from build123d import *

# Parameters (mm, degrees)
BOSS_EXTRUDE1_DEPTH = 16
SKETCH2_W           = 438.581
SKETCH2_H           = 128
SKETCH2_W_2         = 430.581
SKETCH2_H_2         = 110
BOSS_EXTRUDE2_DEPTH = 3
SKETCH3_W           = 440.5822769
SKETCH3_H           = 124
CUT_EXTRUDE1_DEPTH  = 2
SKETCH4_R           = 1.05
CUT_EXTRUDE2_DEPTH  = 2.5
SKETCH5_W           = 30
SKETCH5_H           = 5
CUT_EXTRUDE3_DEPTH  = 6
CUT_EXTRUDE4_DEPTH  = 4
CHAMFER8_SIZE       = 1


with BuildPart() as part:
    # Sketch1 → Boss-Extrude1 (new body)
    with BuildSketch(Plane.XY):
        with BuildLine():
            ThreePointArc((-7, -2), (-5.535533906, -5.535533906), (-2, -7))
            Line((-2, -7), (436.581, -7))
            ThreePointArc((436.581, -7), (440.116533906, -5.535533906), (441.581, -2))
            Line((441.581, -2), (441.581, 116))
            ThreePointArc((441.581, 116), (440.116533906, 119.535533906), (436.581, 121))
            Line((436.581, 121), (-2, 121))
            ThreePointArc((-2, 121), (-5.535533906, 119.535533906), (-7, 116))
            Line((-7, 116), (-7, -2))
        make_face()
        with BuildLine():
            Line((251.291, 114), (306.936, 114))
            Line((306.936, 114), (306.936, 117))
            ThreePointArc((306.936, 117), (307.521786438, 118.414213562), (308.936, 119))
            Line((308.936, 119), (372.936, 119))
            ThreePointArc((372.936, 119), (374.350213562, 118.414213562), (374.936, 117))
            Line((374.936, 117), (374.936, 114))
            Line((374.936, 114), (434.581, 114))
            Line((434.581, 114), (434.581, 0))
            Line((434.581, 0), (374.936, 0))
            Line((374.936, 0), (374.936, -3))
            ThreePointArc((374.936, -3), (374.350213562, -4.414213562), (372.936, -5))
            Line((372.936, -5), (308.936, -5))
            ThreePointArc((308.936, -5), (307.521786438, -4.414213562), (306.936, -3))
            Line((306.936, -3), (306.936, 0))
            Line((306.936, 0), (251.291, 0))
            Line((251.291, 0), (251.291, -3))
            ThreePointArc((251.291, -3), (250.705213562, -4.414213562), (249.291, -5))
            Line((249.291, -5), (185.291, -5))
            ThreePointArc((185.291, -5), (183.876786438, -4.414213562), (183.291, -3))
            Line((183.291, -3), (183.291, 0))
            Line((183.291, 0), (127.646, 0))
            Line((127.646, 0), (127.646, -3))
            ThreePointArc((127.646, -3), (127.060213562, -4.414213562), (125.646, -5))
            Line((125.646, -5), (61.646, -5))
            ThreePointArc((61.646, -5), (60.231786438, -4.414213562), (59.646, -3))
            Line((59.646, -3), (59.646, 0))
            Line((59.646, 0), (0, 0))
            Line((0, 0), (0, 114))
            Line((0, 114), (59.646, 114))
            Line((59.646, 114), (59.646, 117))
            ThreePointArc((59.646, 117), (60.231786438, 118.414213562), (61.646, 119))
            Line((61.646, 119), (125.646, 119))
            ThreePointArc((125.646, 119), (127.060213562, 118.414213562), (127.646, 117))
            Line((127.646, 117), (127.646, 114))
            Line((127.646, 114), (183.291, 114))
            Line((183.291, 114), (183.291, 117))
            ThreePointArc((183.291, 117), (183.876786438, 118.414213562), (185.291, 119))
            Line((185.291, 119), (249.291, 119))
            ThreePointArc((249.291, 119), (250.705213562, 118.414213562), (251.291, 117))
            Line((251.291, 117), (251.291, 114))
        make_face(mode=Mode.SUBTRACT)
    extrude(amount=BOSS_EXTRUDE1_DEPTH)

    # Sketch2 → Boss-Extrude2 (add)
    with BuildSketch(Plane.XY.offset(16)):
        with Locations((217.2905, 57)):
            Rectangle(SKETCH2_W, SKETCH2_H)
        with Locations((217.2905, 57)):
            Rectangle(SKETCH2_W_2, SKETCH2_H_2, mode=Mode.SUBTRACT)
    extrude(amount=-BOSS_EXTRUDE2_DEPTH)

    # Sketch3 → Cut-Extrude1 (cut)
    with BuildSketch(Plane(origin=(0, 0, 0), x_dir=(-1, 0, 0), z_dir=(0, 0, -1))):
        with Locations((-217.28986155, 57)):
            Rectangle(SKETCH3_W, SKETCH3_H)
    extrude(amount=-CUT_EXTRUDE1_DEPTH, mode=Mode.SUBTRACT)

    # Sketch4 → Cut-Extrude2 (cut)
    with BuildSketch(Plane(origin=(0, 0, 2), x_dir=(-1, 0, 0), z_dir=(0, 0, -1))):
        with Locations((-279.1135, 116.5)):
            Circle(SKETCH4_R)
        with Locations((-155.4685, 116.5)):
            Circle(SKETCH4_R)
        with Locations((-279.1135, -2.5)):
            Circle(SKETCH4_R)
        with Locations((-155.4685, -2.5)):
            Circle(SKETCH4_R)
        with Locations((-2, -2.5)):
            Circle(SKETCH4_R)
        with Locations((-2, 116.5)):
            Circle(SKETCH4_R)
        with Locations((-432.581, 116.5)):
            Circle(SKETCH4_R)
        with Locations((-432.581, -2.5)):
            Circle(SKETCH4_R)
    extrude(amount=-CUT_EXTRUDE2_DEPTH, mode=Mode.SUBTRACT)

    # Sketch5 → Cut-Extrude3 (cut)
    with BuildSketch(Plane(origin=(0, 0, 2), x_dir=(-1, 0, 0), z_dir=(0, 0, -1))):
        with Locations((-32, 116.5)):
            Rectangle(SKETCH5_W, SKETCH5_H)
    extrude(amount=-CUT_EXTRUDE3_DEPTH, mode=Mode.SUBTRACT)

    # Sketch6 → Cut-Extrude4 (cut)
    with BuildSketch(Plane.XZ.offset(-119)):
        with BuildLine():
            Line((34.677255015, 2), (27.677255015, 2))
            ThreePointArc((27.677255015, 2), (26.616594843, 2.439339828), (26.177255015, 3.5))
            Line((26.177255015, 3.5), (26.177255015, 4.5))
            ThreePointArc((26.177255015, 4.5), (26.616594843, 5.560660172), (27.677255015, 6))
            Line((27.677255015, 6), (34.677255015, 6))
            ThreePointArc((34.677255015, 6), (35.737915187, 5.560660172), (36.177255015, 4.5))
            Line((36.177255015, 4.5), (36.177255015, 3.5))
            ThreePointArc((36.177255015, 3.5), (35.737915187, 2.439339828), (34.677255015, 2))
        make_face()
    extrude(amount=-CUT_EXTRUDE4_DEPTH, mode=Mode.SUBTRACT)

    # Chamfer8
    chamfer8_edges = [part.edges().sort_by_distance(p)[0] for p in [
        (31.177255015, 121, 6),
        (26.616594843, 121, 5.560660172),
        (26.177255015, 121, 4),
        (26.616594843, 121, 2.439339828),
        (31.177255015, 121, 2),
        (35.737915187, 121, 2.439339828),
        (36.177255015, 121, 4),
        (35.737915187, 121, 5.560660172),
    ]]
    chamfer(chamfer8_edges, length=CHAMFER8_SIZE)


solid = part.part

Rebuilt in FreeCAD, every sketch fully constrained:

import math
import FreeCAD as App
import Part
import Sketcher
from FreeCAD import Vector


def edges_at(feature, points):
    """Names of the edges that pass closest to the given points."""
    edges = feature.Shape.Edges
    near = lambda p: min(range(len(edges)), key=lambda i: edges[i].distToShape(Part.Vertex(*p))[0])
    return sorted({f"Edge{near(p) + 1}" for p in points})


def add_polygon(sketch, points):
    """Adds a closed chain of lines whose ends are joined by coincident constraints."""
    first, n = sketch.GeometryCount, len(points)
    for a, b in zip(points, points[1:] + points[:1]):
        sketch.addGeometry(Part.LineSegment(App.Vector(*a, 0), App.Vector(*b, 0)), False)
    for i in range(n):
        sketch.addConstraint(Sketcher.Constraint("Coincident", first + i, 2, first + (i + 1) % n, 1))

doc = App.newDocument("Part")
body = doc.addObject("PartDesign::Body", "Body")

# Sketch on XY plane
sketch1 = doc.addObject("Sketcher::SketchObject", "Sketch")
body.addObject(sketch1)
sketch1.AttachmentSupport = (doc.XY_Plane, [""])
sketch1.MapMode = "FlatFace"
sketch1.addGeometry([
    Part.ArcOfCircle(Part.Circle(Vector(-2, -2, 0), Vector(0, 0, 1), 5), math.radians(180), math.radians(270)),  # 0
    Part.LineSegment(Vector(-2, -7, 0), Vector(436.6, -7, 0)),  # 1
    Part.ArcOfCircle(Part.Circle(Vector(436.6, -2, 0), Vector(0, 0, 1), 5), math.radians(-90), math.radians(0)),  # 2
    Part.LineSegment(Vector(441.6, -2, 0), Vector(441.6, 116, 0)),  # 3
    Part.ArcOfCircle(Part.Circle(Vector(436.6, 116, 0), Vector(0, 0, 1), 5), math.radians(0), math.radians(90)),  # 4
    Part.LineSegment(Vector(436.6, 121, 0), Vector(-2, 121, 0)),  # 5
    Part.ArcOfCircle(Part.Circle(Vector(-2, 116, 0), Vector(0, 0, 1), 5), math.radians(90), math.radians(180)),  # 6
    Part.LineSegment(Vector(-7, 116, 0), Vector(-7, -2, 0)),  # 7
    Part.LineSegment(Vector(251.3, 117, 0), Vector(251.3, 114, 0)),  # 8
    Part.LineSegment(Vector(251.3, 114, 0), Vector(306.9, 114, 0)),  # 9
    Part.LineSegment(Vector(306.9, 114, 0), Vector(306.9, 117, 0)),  # 10
    Part.ArcOfCircle(Part.Circle(Vector(308.9, 117, 0), Vector(0, 0, 1), 2), math.radians(90), math.radians(180)),  # 11
    Part.LineSegment(Vector(308.9, 119, 0), Vector(372.9, 119, 0)),  # 12
    Part.ArcOfCircle(Part.Circle(Vector(372.9, 117, 0), Vector(0, 0, 1), 2), math.radians(0), math.radians(90)),  # 13
    Part.LineSegment(Vector(374.9, 117, 0), Vector(374.9, 114, 0)),  # 14
    Part.LineSegment(Vector(374.9, 114, 0), Vector(434.6, 114, 0)),  # 15
    Part.LineSegment(Vector(434.6, 114, 0), Vector(434.6, 0, 0)),  # 16
    Part.LineSegment(Vector(434.6, 0, 0), Vector(374.9, 0, 0)),  # 17
    Part.LineSegment(Vector(374.9, 0, 0), Vector(374.9, -3, 0)),  # 18
    Part.ArcOfCircle(Part.Circle(Vector(372.9, -3, 0), Vector(0, 0, 1), 2), math.radians(-90), math.radians(0)),  # 19
    Part.LineSegment(Vector(372.9, -5, 0), Vector(308.9, -5, 0)),  # 20
    Part.ArcOfCircle(Part.Circle(Vector(308.9, -3, 0), Vector(0, 0, 1), 2), math.radians(-180), math.radians(-90)),  # 21
    Part.LineSegment(Vector(306.9, -3, 0), Vector(306.9, 0, 0)),  # 22
    Part.LineSegment(Vector(306.9, 0, 0), Vector(251.3, 0, 0)),  # 23
    Part.LineSegment(Vector(251.3, 0, 0), Vector(251.3, -3, 0)),  # 24
    Part.ArcOfCircle(Part.Circle(Vector(249.3, -3, 0), Vector(0, 0, 1), 2), math.radians(-90), math.radians(0)),  # 25
    Part.LineSegment(Vector(249.3, -5, 0), Vector(185.3, -5, 0)),  # 26
    Part.ArcOfCircle(Part.Circle(Vector(185.3, -3, 0), Vector(0, 0, 1), 2), math.radians(-180), math.radians(-90)),  # 27
    Part.LineSegment(Vector(183.3, -3, 0), Vector(183.3, 0, 0)),  # 28
    Part.LineSegment(Vector(183.3, 0, 0), Vector(127.6, 0, 0)),  # 29
    Part.LineSegment(Vector(127.6, 0, 0), Vector(127.6, -3, 0)),  # 30
    Part.ArcOfCircle(Part.Circle(Vector(125.6, -3, 0), Vector(0, 0, 1), 2), math.radians(-90), math.radians(0)),  # 31
    Part.LineSegment(Vector(125.6, -5, 0), Vector(61.6, -5, 0)),  # 32
    Part.ArcOfCircle(Part.Circle(Vector(61.6, -3, 0), Vector(0, 0, 1), 2), math.radians(-180), math.radians(-90)),  # 33
    Part.LineSegment(Vector(59.6, -3, 0), Vector(59.6, 0, 0)),  # 34
    Part.LineSegment(Vector(59.6, 0, 0), Vector(0, 0, 0)),  # 35
    Part.LineSegment(Vector(0, 0, 0), Vector(0, 114, 0)),  # 36
    Part.LineSegment(Vector(0, 114, 0), Vector(59.6, 114, 0)),  # 37
    Part.LineSegment(Vector(59.6, 114, 0), Vector(59.6, 117, 0)),  # 38
    Part.ArcOfCircle(Part.Circle(Vector(61.6, 117, 0), Vector(0, 0, 1), 2), math.radians(90), math.radians(180)),  # 39
    Part.LineSegment(Vector(61.6, 119, 0), Vector(125.6, 119, 0)),  # 40
    Part.ArcOfCircle(Part.Circle(Vector(125.6, 117, 0), Vector(0, 0, 1), 2), math.radians(0), math.radians(90)),  # 41
    Part.LineSegment(Vector(127.6, 117, 0), Vector(127.6, 114, 0)),  # 42
    Part.LineSegment(Vector(127.6, 114, 0), Vector(183.3, 114, 0)),  # 43
    Part.LineSegment(Vector(183.3, 114, 0), Vector(183.3, 117, 0)),  # 44
    Part.ArcOfCircle(Part.Circle(Vector(185.3, 117, 0), Vector(0, 0, 1), 2), math.radians(90), math.radians(180)),  # 45
    Part.LineSegment(Vector(185.3, 119, 0), Vector(249.3, 119, 0)),  # 46
    Part.ArcOfCircle(Part.Circle(Vector(249.3, 117, 0), Vector(0, 0, 1), 2), math.radians(0), math.radians(90)),  # 47
], False)
sketch1.addConstraint([
    Sketcher.Constraint("Tangent", 0, 2, 1, 1),
    Sketcher.Constraint("Tangent", 1, 2, 2, 1),
    Sketcher.Constraint("Tangent", 2, 2, 3, 1),
    Sketcher.Constraint("Tangent", 3, 2, 4, 1),
    Sketcher.Constraint("Tangent", 4, 2, 5, 1),
    Sketcher.Constraint("Tangent", 5, 2, 6, 1),
    Sketcher.Constraint("Tangent", 6, 2, 7, 1),
    Sketcher.Constraint("Tangent", 7, 2, 0, 1),
    Sketcher.Constraint("Coincident", 8, 2, 9, 1),
    Sketcher.Constraint("Coincident", 9, 2, 10, 1),
    Sketcher.Constraint("Tangent", 10, 2, 11, 2),
    Sketcher.Constraint("Tangent", 11, 1, 12, 1),
    Sketcher.Constraint("Tangent", 12, 2, 13, 2),
    Sketcher.Constraint("Tangent", 13, 1, 14, 1),
    Sketcher.Constraint("Coincident", 14, 2, 15, 1),
    Sketcher.Constraint("Coincident", 15, 2, 16, 1),
    Sketcher.Constraint("Coincident", 16, 2, 17, 1),
    Sketcher.Constraint("Coincident", 17, 2, 18, 1),
    Sketcher.Constraint("Tangent", 18, 2, 19, 2),
    Sketcher.Constraint("Tangent", 19, 1, 20, 1),
    Sketcher.Constraint("Tangent", 20, 2, 21, 2),
    Sketcher.Constraint("Tangent", 21, 1, 22, 1),
    Sketcher.Constraint("Coincident", 22, 2, 23, 1),
    Sketcher.Constraint("Coincident", 23, 2, 24, 1),
    Sketcher.Constraint("Tangent", 24, 2, 25, 2),
    Sketcher.Constraint("Tangent", 25, 1, 26, 1),
    Sketcher.Constraint("Tangent", 26, 2, 27, 2),
    Sketcher.Constraint("Tangent", 27, 1, 28, 1),
    Sketcher.Constraint("Coincident", 28, 2, 29, 1),
    Sketcher.Constraint("Coincident", 29, 2, 30, 1),
    Sketcher.Constraint("Tangent", 30, 2, 31, 2),
    Sketcher.Constraint("Tangent", 31, 1, 32, 1),
    Sketcher.Constraint("Tangent", 32, 2, 33, 2),
    Sketcher.Constraint("Tangent", 33, 1, 34, 1),
    Sketcher.Constraint("Coincident", 34, 2, 35, 1),
    Sketcher.Constraint("Coincident", 35, 2, 36, 1),
    Sketcher.Constraint("Coincident", 36, 2, 37, 1),
    Sketcher.Constraint("Coincident", 37, 2, 38, 1),
    Sketcher.Constraint("Tangent", 38, 2, 39, 2),
    Sketcher.Constraint("Tangent", 39, 1, 40, 1),
    Sketcher.Constraint("Tangent", 40, 2, 41, 2),
    Sketcher.Constraint("Tangent", 41, 1, 42, 1),
    Sketcher.Constraint("Coincident", 42, 2, 43, 1),
    Sketcher.Constraint("Coincident", 43, 2, 44, 1),
    Sketcher.Constraint("Tangent", 44, 2, 45, 2),
    Sketcher.Constraint("Tangent", 45, 1, 46, 1),
    Sketcher.Constraint("Tangent", 46, 2, 47, 2),
    Sketcher.Constraint("Tangent", 47, 1, 8, 1),
    Sketcher.Constraint("Horizontal", 1),
    Sketcher.Constraint("Vertical", 3),
    Sketcher.Constraint("Horizontal", 5),
    Sketcher.Constraint("Vertical", 7),
    Sketcher.Constraint("Vertical", 8),
    Sketcher.Constraint("Horizontal", 9),
    Sketcher.Constraint("Vertical", 10),
    Sketcher.Constraint("Horizontal", 12),
    Sketcher.Constraint("Vertical", 14),
    Sketcher.Constraint("Horizontal", 15),
    Sketcher.Constraint("Vertical", 16),
    Sketcher.Constraint("Horizontal", 17),
    Sketcher.Constraint("Vertical", 18),
    Sketcher.Constraint("Horizontal", 20),
    Sketcher.Constraint("Vertical", 22),
    Sketcher.Constraint("Horizontal", 23),
    Sketcher.Constraint("Vertical", 24),
    Sketcher.Constraint("Horizontal", 26),
    Sketcher.Constraint("Vertical", 28),
    Sketcher.Constraint("Horizontal", 29),
    Sketcher.Constraint("Vertical", 30),
    Sketcher.Constraint("Horizontal", 32),
    Sketcher.Constraint("Vertical", 34),
    Sketcher.Constraint("Horizontal", 35),
    Sketcher.Constraint("Vertical", 36),
    Sketcher.Constraint("Horizontal", 37),
    Sketcher.Constraint("Vertical", 38),
    Sketcher.Constraint("Horizontal", 40),
    Sketcher.Constraint("Vertical", 42),
    Sketcher.Constraint("Horizontal", 43),
    Sketcher.Constraint("Vertical", 44),
    Sketcher.Constraint("Horizontal", 46),
    Sketcher.Constraint("Coincident", 35, 2, -1, 1),
    Sketcher.Constraint("Equal", 0, 2),
    Sketcher.Constraint("Equal", 2, 4),
    Sketcher.Constraint("Equal", 4, 6),
    Sketcher.Constraint("Equal", 11, 13),
    Sketcher.Constraint("Equal", 13, 19),
    Sketcher.Constraint("Equal", 19, 21),
    Sketcher.Constraint("Equal", 21, 25),
    Sketcher.Constraint("Equal", 25, 27),
    Sketcher.Constraint("Equal", 27, 31),
    Sketcher.Constraint("Equal", 31, 33),
    Sketcher.Constraint("Equal", 33, 39),
    Sketcher.Constraint("Equal", 39, 41),
    Sketcher.Constraint("Equal", 41, 45),
    Sketcher.Constraint("Equal", 45, 47),
    Sketcher.Constraint("PointOnObject", 16, 2, -1),
    Sketcher.Constraint("PointOnObject", 22, 2, -1),
    Sketcher.Constraint("PointOnObject", 28, 2, -1),
    Sketcher.Constraint("Horizontal", 21, 3, 25, 3),
    Sketcher.Constraint("Horizontal", 27, 3, 31, 3),
    Sketcher.Constraint("Horizontal", 13, 3, 39, 3),
    Sketcher.Constraint("Horizontal", 41, 3, 45, 3),
    Sketcher.Constraint("Horizontal", 9, 2, 14, 2),
    Sketcher.Constraint("Horizontal", 15, 2, 36, 2),
    Sketcher.Constraint("Horizontal", 37, 2, 42, 2),
    Sketcher.Constraint("Vertical", 13, 3, 19, 3),
    Sketcher.Constraint("Vertical", 11, 3, 21, 3),
    Sketcher.Constraint("Vertical", 33, 3, 39, 3),
    Sketcher.Constraint("Vertical", 31, 3, 41, 3),
    Sketcher.Constraint("Vertical", 27, 3, 45, 3),
    Sketcher.Constraint("Vertical", 25, 3, 47, 3),
    Sketcher.Constraint("Equal", 20, 26),
    Sketcher.Constraint("Equal", 23, 29),
    Sketcher.Constraint("Equal", 26, 32),
    Sketcher.Constraint("Equal", 14, 18),
    Sketcher.Constraint("Radius", 0, 5.0),
    Sketcher.Constraint("Radius", 11, 2.0),
    Sketcher.Constraint("DistanceX", 12, 1, 12, 2, 64.0),
    Sketcher.Constraint("DistanceY", 3, 1, 3, 2, 118.0),
    Sketcher.Constraint("DistanceY", 8, 2, 8, 1, 3.0),
    Sketcher.Constraint("DistanceY", 16, 2, 16, 1, 114.0),
    Sketcher.Constraint("DistanceX", 0, 3, -1, 1, 2.0),
    Sketcher.Constraint("DistanceY", 0, 3, -1, 1, 2.0),
    Sketcher.Constraint("DistanceX", 1, 1, 1, 2, 438.581),
    Sketcher.Constraint("DistanceX", 9, 1, 9, 2, 55.645),
    Sketcher.Constraint("DistanceX", 15, 1, 15, 2, 59.645),
    Sketcher.Constraint("DistanceX", 35, 2, 35, 1, 59.646),
])
pad1 = doc.addObject("PartDesign::Pad", "Pad")
body.addObject(pad1)
pad1.Profile = sketch1
pad1.Length = 16

# Sketch on XY plane
sketch2 = doc.addObject("Sketcher::SketchObject", "Sketch001")
body.addObject(sketch2)
sketch2.AttachmentSupport = (doc.XY_Plane, [""])
sketch2.MapMode = "FlatFace"
sketch2.AttachmentOffset = App.Placement(Vector(0, 0, 16), App.Rotation())
add_polygon(sketch2, [(-2, 121), (-2, -7), (437, -7), (437, 121)])  # lines 0-3
add_polygon(sketch2, [(433, 2), (2, 2), (2, 112), (433, 112)])  # lines 4-7
sketch2.addConstraint([
    Sketcher.Constraint("Vertical", 0),
    Sketcher.Constraint("Horizontal", 1),
    Sketcher.Constraint("Vertical", 2),
    Sketcher.Constraint("Horizontal", 3),
    Sketcher.Constraint("Horizontal", 4),
    Sketcher.Constraint("Vertical", 5),
    Sketcher.Constraint("Horizontal", 6),
    Sketcher.Constraint("Vertical", 7),
    Sketcher.Constraint("DistanceY", 0, 2, 0, 1, 128.0),
    Sketcher.Constraint("DistanceY", 5, 1, 5, 2, 110.0),
    Sketcher.Constraint("DistanceX", 0, 2, -1, 1, 2.0),
    Sketcher.Constraint("DistanceY", 0, 2, -1, 1, 7.0),
    Sketcher.Constraint("DistanceX", -1, 1, 4, 2, 2.0),
    Sketcher.Constraint("DistanceY", -1, 1, 4, 2, 2.0),
    Sketcher.Constraint("DistanceX", 6, 2, 2, 2, 4.0),
    Sketcher.Constraint("DistanceX", 1, 1, 1, 2, 438.581),
])
pad2 = doc.addObject("PartDesign::Pad", "Pad001")
body.addObject(pad2)
pad2.Profile = sketch2
pad2.Length = 3
pad2.Reversed = True

# Sketch on XY plane
sketch3 = doc.addObject("Sketcher::SketchObject", "Sketch002")
body.addObject(sketch3)
sketch3.AttachmentSupport = (doc.XY_Plane, [""])
sketch3.MapMode = "FlatFace"
add_polygon(sketch3, [(438, 119), (438, -5), (-3, -5), (-3, 119)])  # lines 0-3
sketch3.addConstraint([
    Sketcher.Constraint("Vertical", 0),
    Sketcher.Constraint("Horizontal", 1),
    Sketcher.Constraint("Vertical", 2),
    Sketcher.Constraint("Horizontal", 3),
    Sketcher.Constraint("DistanceY", 0, 2, 0, 1, 124.0),
    Sketcher.Constraint("DistanceY", 0, 2, -1, 1, 5.0),
    Sketcher.Constraint("DistanceX", -1, 1, 0, 2, 437.581),
    Sketcher.Constraint("DistanceX", 1, 2, 1, 1, 440.582277),
])
pocket1 = doc.addObject("PartDesign::Pocket", "Pocket")
body.addObject(pocket1)
pocket1.Profile = sketch3
pocket1.Length = 2
pocket1.Reversed = True

# Sketch on XY plane
sketch4 = doc.addObject("Sketcher::SketchObject", "Sketch003")
body.addObject(sketch4)
sketch4.AttachmentSupport = (doc.XY_Plane, [""])
sketch4.MapMode = "FlatFace"
sketch4.AttachmentOffset = App.Placement(Vector(0, 0, 2), App.Rotation())
sketch4.addGeometry([
    Part.Circle(Vector(279.1, 116.5, 0), Vector(0, 0, 1), 1.1),  # 0
    Part.Circle(Vector(155.5, 116.5, 0), Vector(0, 0, 1), 1.1),  # 1
    Part.Circle(Vector(279.1, -2.5, 0), Vector(0, 0, 1), 1.1),  # 2
    Part.Circle(Vector(155.5, -2.5, 0), Vector(0, 0, 1), 1.1),  # 3
    Part.Circle(Vector(2, -2.5, 0), Vector(0, 0, 1), 1.1),  # 4
    Part.Circle(Vector(2, 116.5, 0), Vector(0, 0, 1), 1.1),  # 5
    Part.Circle(Vector(432.6, 116.5, 0), Vector(0, 0, 1), 1.1),  # 6
    Part.Circle(Vector(432.6, -2.5, 0), Vector(0, 0, 1), 1.1),  # 7
], False)
sketch4.addConstraint([
    Sketcher.Constraint("Equal", 0, 1),
    Sketcher.Constraint("Equal", 1, 2),
    Sketcher.Constraint("Equal", 2, 3),
    Sketcher.Constraint("Equal", 3, 4),
    Sketcher.Constraint("Equal", 4, 5),
    Sketcher.Constraint("Equal", 5, 6),
    Sketcher.Constraint("Equal", 6, 7),
    Sketcher.Constraint("Horizontal", 0, 3, 1, 3),
    Sketcher.Constraint("Horizontal", 2, 3, 3, 3),
    Sketcher.Constraint("Horizontal", 3, 3, 4, 3),
    Sketcher.Constraint("Horizontal", 1, 3, 5, 3),
    Sketcher.Constraint("Horizontal", 5, 3, 6, 3),
    Sketcher.Constraint("Horizontal", 4, 3, 7, 3),
    Sketcher.Constraint("Vertical", 0, 3, 2, 3),
    Sketcher.Constraint("Vertical", 1, 3, 3, 3),
    Sketcher.Constraint("Vertical", 4, 3, 5, 3),
    Sketcher.Constraint("Vertical", 6, 3, 7, 3),
    Sketcher.Constraint("Diameter", 0, 2.1),
    Sketcher.Constraint("DistanceX", -1, 1, 4, 3, 2.0),
    Sketcher.Constraint("DistanceY", 2, 3, 0, 3, 119.0),
    Sketcher.Constraint("DistanceY", -1, 1, 0, 3, 116.5),
    Sketcher.Constraint("DistanceX", -1, 1, 6, 3, 432.581),
    Sketcher.Constraint("DistanceX", 1, 3, 0, 3, 123.645),
    Sketcher.Constraint("DistanceX", -1, 1, 0, 3, 279.1135),
])
pocket2 = doc.addObject("PartDesign::Pocket", "Pocket001")
body.addObject(pocket2)
pocket2.Profile = sketch4
pocket2.Length = 2.5
pocket2.Reversed = True

# Sketch on XY plane
sketch5 = doc.addObject("Sketcher::SketchObject", "Sketch004")
body.addObject(sketch5)
sketch5.AttachmentSupport = (doc.XY_Plane, [""])
sketch5.MapMode = "FlatFace"
sketch5.AttachmentOffset = App.Placement(Vector(0, 0, 2), App.Rotation())
add_polygon(sketch5, [(47, 119), (47, 114), (17, 114), (17, 119)])  # lines 0-3
sketch5.addConstraint([
    Sketcher.Constraint("Vertical", 0),
    Sketcher.Constraint("Horizontal", 1),
    Sketcher.Constraint("Vertical", 2),
    Sketcher.Constraint("Horizontal", 3),
    Sketcher.Constraint("DistanceX", 1, 2, 1, 1, 30.0),
    Sketcher.Constraint("DistanceY", 0, 2, 0, 1, 5.0),
    Sketcher.Constraint("DistanceX", -1, 1, 0, 2, 47.0),
    Sketcher.Constraint("DistanceY", -1, 1, 0, 2, 114.0),
])
pocket3 = doc.addObject("PartDesign::Pocket", "Pocket002")
body.addObject(pocket3)
pocket3.Profile = sketch5
pocket3.Length = 6
pocket3.Reversed = True

# Sketch on XZ plane
sketch6 = doc.addObject("Sketcher::SketchObject", "Sketch005")
body.addObject(sketch6)
sketch6.AttachmentSupport = (doc.XZ_Plane, [""])
sketch6.MapMode = "FlatFace"
sketch6.AttachmentOffset = App.Placement(Vector(0, 0, -119), App.Rotation())
sketch6.addGeometry([
    Part.LineSegment(Vector(27.7, 2, 0), Vector(34.7, 2, 0)),  # 0
    Part.ArcOfCircle(Part.Circle(Vector(34.7, 3.5, 0), Vector(0, 0, 1), 1.5), math.radians(-90), math.radians(0)),  # 1
    Part.LineSegment(Vector(36.2, 3.5, 0), Vector(36.2, 4.5, 0)),  # 2
    Part.ArcOfCircle(Part.Circle(Vector(34.7, 4.5, 0), Vector(0, 0, 1), 1.5), math.radians(0), math.radians(90)),  # 3
    Part.LineSegment(Vector(34.7, 6, 0), Vector(27.7, 6, 0)),  # 4
    Part.ArcOfCircle(Part.Circle(Vector(27.7, 4.5, 0), Vector(0, 0, 1), 1.5), math.radians(90), math.radians(180)),  # 5
    Part.LineSegment(Vector(26.2, 4.5, 0), Vector(26.2, 3.5, 0)),  # 6
    Part.ArcOfCircle(Part.Circle(Vector(27.7, 3.5, 0), Vector(0, 0, 1), 1.5), math.radians(180), math.radians(270)),  # 7
], False)
sketch6.addConstraint([
    Sketcher.Constraint("Tangent", 0, 2, 1, 1),
    Sketcher.Constraint("Tangent", 1, 2, 2, 1),
    Sketcher.Constraint("Tangent", 2, 2, 3, 1),
    Sketcher.Constraint("Tangent", 3, 2, 4, 1),
    Sketcher.Constraint("Tangent", 4, 2, 5, 1),
    Sketcher.Constraint("Tangent", 5, 2, 6, 1),
    Sketcher.Constraint("Tangent", 6, 2, 7, 1),
    Sketcher.Constraint("Tangent", 7, 2, 0, 1),
    Sketcher.Constraint("Horizontal", 0),
    Sketcher.Constraint("Vertical", 2),
    Sketcher.Constraint("Horizontal", 4),
    Sketcher.Constraint("Vertical", 6),
    Sketcher.Constraint("Equal", 1, 3),
    Sketcher.Constraint("Equal", 3, 5),
    Sketcher.Constraint("Equal", 5, 7),
    Sketcher.Constraint("Radius", 1, 1.5),
    Sketcher.Constraint("DistanceX", 0, 1, 0, 2, 7.0),
    Sketcher.Constraint("DistanceY", 2, 1, 2, 2, 1.0),
    Sketcher.Constraint("DistanceY", -1, 1, 0, 2, 2.0),
    Sketcher.Constraint("DistanceX", -1, 1, 1, 3, 34.677255),
])
pocket4 = doc.addObject("PartDesign::Pocket", "Pocket003")
body.addObject(pocket4)
pocket4.Profile = sketch6
pocket4.Length = 4
doc.recompute()

chamfer = doc.addObject("PartDesign::Chamfer", "Chamfer")
body.addObject(chamfer)
chamfer.Base = (pocket4, edges_at(pocket4, [
    (31.177, 121, 6),
    (26.617, 121, 5.561),
    (26.177, 121, 4),
    (26.617, 121, 2.439),
    (31.177, 121, 2),
    (35.738, 121, 2.439),
    (36.177, 121, 4),
    (35.738, 121, 5.561),
]))
chamfer.Size = 1

doc.recompute()
